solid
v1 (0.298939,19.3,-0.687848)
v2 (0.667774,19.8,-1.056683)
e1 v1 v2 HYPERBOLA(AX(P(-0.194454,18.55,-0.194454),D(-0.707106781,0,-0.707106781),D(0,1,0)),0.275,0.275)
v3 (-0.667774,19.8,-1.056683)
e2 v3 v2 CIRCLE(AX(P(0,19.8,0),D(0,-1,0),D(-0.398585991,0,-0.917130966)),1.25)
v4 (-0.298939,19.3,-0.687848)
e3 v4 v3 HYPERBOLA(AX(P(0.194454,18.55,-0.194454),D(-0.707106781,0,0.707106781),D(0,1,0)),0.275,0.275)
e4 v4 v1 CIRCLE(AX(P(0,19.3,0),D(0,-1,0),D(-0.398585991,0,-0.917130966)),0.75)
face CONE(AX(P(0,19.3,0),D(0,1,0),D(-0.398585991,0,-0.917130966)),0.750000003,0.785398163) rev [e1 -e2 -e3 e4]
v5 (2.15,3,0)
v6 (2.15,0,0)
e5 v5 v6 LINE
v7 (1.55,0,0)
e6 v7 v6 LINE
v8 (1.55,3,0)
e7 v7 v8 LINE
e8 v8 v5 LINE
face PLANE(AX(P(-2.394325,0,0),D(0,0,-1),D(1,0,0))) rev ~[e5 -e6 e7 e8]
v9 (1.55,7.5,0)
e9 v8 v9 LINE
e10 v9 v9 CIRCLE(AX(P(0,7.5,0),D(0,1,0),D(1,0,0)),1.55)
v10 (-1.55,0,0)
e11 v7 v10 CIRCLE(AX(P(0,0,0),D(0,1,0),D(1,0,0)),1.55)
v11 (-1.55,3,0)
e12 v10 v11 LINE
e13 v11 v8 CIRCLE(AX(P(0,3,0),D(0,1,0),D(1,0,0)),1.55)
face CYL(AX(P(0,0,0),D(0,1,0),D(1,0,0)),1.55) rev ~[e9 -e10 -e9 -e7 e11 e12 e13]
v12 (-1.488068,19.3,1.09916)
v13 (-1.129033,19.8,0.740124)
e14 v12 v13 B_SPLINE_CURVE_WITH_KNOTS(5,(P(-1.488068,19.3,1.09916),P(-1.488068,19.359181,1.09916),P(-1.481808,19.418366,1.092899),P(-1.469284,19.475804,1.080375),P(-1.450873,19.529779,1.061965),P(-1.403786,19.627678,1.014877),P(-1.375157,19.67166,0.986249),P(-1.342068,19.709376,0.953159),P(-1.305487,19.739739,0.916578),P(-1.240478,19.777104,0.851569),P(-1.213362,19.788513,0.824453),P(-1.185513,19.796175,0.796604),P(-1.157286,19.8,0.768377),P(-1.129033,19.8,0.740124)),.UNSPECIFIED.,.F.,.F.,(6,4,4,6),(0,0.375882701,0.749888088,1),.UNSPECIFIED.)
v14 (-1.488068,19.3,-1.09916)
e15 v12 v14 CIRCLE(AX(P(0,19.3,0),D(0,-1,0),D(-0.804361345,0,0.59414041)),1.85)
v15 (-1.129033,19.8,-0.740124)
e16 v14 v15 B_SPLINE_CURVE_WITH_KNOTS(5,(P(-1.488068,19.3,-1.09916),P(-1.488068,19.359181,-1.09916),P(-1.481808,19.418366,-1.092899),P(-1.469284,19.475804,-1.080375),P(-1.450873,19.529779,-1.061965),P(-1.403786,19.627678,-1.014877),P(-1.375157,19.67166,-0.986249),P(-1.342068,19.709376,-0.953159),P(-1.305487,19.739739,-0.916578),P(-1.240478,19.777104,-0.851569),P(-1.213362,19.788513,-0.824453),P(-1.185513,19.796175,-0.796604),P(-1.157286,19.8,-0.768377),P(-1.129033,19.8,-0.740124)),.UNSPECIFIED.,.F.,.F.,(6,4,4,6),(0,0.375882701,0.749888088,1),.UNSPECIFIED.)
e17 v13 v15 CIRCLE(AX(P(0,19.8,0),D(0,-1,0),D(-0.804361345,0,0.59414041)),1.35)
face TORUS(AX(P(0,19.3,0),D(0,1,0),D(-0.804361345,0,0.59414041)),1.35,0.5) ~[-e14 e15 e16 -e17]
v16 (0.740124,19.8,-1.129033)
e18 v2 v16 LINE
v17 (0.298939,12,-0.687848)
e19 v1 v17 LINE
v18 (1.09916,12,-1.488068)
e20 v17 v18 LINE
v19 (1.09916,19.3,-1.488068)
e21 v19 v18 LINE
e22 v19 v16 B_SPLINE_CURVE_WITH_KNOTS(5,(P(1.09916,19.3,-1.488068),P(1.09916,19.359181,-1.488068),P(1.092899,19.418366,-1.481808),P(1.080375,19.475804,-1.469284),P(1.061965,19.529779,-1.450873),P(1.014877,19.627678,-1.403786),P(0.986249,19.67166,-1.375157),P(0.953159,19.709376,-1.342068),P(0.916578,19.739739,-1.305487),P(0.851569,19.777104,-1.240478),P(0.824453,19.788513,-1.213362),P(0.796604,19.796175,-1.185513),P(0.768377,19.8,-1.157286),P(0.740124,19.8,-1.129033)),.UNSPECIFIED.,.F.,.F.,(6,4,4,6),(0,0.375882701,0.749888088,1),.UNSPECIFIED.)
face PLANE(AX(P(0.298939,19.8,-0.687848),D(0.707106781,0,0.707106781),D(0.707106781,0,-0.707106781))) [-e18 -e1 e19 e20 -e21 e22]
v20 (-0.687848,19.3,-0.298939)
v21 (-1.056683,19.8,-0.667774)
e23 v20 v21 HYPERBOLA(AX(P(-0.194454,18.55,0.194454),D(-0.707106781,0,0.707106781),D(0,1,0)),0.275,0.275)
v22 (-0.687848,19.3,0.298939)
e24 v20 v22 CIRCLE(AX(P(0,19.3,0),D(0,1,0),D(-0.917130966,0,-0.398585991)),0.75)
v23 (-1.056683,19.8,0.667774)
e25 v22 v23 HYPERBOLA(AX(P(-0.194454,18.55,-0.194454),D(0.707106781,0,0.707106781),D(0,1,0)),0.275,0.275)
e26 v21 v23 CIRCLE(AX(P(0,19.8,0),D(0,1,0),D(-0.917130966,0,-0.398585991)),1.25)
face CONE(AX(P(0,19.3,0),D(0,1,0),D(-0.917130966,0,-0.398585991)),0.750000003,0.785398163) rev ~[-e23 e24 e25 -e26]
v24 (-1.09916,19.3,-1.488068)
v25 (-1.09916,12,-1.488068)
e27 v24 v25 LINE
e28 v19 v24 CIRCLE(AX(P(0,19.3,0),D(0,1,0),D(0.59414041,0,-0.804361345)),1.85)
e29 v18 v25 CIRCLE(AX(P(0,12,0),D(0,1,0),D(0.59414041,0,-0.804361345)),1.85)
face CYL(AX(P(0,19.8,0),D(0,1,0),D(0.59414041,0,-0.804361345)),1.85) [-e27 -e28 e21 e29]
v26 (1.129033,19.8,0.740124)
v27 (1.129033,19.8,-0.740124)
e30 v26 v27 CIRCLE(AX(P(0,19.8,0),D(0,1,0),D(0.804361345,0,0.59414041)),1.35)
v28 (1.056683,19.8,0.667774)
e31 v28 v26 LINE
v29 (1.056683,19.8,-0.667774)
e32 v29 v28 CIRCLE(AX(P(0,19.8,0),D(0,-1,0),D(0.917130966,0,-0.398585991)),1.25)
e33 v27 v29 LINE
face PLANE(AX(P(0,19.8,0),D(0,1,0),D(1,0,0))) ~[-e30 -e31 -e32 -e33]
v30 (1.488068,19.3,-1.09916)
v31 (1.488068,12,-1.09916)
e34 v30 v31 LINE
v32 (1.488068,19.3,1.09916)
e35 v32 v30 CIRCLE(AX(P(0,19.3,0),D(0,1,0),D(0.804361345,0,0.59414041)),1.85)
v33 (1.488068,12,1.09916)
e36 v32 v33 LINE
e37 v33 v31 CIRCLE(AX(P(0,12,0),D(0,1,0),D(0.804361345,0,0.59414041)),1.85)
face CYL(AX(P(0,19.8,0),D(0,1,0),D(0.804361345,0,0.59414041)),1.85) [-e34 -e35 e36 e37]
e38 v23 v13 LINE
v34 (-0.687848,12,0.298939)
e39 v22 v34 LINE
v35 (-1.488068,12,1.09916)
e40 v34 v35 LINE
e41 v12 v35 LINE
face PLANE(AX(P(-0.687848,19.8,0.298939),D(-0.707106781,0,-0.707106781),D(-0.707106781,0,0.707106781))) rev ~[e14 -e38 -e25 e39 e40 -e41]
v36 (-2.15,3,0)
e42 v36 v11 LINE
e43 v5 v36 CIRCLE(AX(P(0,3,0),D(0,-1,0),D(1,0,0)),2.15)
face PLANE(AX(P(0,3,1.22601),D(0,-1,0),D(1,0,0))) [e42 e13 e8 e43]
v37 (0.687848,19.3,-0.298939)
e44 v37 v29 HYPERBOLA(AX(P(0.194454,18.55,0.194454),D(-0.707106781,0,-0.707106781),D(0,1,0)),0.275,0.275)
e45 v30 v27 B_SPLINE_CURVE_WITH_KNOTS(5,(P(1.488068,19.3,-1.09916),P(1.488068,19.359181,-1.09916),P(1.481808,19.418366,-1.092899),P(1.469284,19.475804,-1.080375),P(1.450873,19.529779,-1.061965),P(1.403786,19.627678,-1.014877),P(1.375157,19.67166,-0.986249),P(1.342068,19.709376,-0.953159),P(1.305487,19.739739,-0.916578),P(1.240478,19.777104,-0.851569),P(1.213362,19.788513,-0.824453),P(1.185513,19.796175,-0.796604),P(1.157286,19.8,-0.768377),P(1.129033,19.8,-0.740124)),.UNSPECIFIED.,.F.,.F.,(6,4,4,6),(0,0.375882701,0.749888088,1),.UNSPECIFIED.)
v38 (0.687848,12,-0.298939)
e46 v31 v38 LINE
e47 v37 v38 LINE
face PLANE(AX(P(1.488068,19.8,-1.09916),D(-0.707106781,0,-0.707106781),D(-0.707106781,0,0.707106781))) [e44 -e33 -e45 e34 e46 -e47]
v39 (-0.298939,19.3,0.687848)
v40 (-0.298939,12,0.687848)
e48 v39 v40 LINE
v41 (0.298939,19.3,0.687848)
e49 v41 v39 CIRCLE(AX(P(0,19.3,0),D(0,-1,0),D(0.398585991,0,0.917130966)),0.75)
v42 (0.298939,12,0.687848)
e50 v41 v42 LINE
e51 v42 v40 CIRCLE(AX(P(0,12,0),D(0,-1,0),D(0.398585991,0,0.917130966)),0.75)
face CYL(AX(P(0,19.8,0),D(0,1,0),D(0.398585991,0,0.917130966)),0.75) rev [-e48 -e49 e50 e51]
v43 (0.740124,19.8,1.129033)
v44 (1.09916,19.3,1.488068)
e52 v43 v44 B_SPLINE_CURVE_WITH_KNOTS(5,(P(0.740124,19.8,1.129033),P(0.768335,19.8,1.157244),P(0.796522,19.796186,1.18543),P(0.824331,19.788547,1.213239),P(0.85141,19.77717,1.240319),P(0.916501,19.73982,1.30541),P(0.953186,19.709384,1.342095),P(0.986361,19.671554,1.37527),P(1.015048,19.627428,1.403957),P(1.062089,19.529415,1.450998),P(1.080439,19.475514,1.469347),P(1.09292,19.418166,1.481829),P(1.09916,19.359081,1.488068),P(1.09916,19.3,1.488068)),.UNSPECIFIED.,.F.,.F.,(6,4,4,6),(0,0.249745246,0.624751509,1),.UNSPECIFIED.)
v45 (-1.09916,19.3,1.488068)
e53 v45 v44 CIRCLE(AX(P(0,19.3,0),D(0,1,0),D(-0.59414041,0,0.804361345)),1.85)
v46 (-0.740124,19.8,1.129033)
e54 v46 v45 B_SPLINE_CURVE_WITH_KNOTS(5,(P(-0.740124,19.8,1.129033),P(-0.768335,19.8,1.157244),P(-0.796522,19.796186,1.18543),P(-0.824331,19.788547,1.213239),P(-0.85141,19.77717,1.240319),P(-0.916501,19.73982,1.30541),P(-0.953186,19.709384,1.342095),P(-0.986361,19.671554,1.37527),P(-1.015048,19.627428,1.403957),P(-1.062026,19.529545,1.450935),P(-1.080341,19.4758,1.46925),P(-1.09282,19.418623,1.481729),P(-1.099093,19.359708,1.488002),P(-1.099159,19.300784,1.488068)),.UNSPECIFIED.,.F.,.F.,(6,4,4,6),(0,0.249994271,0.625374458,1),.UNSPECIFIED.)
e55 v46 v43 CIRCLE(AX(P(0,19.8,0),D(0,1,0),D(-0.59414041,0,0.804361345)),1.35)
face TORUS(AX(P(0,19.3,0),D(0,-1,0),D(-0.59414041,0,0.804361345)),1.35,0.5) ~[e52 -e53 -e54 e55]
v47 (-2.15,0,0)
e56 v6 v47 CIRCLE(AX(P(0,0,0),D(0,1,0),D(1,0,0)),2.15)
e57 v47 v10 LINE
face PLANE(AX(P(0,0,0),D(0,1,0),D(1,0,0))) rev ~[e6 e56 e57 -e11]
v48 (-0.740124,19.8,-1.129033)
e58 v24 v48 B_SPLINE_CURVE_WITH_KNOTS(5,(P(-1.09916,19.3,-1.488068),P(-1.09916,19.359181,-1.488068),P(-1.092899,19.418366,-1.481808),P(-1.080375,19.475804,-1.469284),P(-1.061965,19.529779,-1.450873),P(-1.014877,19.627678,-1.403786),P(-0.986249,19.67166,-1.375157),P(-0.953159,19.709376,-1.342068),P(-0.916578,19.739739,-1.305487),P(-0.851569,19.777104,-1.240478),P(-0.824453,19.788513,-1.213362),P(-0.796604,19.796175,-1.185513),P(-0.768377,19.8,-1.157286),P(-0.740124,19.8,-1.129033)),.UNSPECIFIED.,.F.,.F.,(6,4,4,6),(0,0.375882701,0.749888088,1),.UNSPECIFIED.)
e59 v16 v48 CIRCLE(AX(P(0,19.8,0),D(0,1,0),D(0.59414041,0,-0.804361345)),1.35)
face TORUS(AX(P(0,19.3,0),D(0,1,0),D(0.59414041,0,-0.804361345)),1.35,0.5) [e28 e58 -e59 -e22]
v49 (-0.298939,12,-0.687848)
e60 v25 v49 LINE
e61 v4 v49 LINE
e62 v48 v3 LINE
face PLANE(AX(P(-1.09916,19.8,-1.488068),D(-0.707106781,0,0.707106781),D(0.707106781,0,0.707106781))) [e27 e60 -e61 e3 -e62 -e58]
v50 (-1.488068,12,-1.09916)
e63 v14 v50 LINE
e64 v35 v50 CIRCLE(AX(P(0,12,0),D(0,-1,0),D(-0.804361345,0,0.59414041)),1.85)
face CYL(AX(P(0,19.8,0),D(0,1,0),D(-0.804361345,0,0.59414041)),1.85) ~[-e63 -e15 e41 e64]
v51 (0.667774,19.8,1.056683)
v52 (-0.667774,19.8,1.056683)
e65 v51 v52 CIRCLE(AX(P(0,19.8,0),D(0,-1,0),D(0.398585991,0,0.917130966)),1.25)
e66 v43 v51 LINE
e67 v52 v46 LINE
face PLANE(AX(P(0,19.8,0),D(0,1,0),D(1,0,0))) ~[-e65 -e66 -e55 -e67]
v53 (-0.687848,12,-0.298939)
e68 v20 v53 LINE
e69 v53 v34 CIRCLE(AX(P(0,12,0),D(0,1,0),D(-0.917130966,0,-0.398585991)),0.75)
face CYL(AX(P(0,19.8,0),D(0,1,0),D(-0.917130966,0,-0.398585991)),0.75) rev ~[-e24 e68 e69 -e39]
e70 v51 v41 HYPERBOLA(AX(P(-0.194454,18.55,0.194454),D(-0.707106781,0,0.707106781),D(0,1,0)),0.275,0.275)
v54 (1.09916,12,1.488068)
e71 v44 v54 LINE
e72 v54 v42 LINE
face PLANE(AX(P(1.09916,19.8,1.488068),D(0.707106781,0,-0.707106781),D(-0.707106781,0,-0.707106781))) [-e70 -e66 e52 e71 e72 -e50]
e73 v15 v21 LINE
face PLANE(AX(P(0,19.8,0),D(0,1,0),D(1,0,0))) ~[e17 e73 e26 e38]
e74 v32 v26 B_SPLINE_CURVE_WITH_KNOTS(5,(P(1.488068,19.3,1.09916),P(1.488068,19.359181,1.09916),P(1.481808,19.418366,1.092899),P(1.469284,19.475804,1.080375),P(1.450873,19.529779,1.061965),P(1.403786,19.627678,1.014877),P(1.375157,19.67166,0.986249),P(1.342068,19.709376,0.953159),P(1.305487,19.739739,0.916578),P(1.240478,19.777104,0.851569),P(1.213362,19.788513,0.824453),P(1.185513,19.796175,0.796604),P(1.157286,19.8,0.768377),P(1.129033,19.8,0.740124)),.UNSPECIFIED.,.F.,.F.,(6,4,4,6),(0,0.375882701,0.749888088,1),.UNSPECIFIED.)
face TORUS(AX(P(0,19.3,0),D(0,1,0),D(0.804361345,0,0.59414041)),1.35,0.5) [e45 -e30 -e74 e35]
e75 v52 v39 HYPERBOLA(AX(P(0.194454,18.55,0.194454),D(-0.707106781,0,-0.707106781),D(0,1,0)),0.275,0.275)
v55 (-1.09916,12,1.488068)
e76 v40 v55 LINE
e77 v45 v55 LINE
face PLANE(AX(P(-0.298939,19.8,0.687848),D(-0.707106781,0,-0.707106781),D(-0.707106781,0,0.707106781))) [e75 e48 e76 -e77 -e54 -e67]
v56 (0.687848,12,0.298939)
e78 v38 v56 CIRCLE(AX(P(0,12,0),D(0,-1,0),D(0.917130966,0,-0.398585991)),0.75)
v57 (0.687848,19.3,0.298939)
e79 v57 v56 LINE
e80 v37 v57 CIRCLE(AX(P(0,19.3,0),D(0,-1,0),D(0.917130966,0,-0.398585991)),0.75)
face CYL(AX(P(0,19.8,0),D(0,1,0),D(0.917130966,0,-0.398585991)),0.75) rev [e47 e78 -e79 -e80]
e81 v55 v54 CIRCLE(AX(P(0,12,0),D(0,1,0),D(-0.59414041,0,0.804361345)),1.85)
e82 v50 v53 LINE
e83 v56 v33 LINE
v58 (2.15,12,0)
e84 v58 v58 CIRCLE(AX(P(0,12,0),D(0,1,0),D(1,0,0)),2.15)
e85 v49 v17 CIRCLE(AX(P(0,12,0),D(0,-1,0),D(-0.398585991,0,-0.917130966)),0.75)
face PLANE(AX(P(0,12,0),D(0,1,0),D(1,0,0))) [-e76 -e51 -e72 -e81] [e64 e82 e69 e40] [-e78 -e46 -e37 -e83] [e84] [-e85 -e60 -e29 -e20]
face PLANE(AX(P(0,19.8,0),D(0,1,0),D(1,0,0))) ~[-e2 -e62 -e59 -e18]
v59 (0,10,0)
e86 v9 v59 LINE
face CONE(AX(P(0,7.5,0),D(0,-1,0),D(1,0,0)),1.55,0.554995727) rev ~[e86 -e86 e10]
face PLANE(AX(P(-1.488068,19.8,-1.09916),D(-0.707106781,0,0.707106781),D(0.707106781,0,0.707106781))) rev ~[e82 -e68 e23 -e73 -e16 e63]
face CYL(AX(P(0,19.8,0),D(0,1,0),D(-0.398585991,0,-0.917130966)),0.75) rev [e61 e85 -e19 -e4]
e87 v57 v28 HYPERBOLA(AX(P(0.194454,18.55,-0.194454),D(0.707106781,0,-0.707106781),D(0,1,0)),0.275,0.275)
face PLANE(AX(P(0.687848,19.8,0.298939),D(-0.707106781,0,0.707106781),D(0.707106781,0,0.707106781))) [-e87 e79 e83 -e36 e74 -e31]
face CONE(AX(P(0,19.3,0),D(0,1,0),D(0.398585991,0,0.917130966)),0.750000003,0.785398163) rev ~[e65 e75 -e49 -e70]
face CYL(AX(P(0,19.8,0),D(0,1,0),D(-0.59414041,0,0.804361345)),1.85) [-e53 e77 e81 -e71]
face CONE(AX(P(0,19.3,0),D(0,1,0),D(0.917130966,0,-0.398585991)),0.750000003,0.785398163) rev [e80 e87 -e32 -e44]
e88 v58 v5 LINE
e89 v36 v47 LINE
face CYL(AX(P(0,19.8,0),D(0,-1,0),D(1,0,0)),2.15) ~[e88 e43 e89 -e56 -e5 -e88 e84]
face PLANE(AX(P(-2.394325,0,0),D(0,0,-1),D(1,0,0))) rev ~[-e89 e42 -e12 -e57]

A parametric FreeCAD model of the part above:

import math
import FreeCAD as App
import Part
import Sketcher
from FreeCAD import Vector
Q = App.Units.Quantity


def edges_at(feature, points):
    """Names of the edges that pass closest to the given points."""
    edges = feature.Shape.Edges
    near = lambda p: min(range(len(edges)), key=lambda i: edges[i].distToShape(Part.Vertex(*p))[0])
    return sorted({f"Edge{near(p) + 1}" for p in points})

doc = App.newDocument("Part")
body = doc.addObject("PartDesign::Body", "Body")

sketch1 = body.newObject("Sketcher::SketchObject", "Sketch")
sketch1.AttachmentSupport = (doc.getObject("XY_Plane"), [""])
sketch1.MapMode = "FlatFace"
sketch1.addGeometry(Part.LineSegment(Vector(0, 19.8, 0), Vector(0, 10, 0)), False)
sketch1.addGeometry(Part.LineSegment(Vector(0, 10, 0), Vector(1.55, 7.5, 0)), False)
sketch1.addGeometry(Part.LineSegment(Vector(1.55, 7.5, 0), Vector(1.55, 0, 0)), False)
sketch1.addGeometry(Part.LineSegment(Vector(1.55, 0, 0), Vector(2.15, 0, 0)), False)
sketch1.addGeometry(Part.LineSegment(Vector(2.15, 0, 0), Vector(2.15, 19.8, 0)), False)
sketch1.addGeometry(Part.LineSegment(Vector(2.15, 19.8, 0), Vector(0, 19.8, 0)), False)
sketch1.addConstraint(Sketcher.Constraint("Coincident", 0, 2, 1, 1))
sketch1.addConstraint(Sketcher.Constraint("Coincident", 1, 2, 2, 1))
sketch1.addConstraint(Sketcher.Constraint("Coincident", 2, 2, 3, 1))
sketch1.addConstraint(Sketcher.Constraint("Coincident", 3, 2, 4, 1))
sketch1.addConstraint(Sketcher.Constraint("Coincident", 4, 2, 5, 1))
sketch1.addConstraint(Sketcher.Constraint("Coincident", 5, 2, 0, 1))
sketch1.addConstraint(Sketcher.Constraint("Vertical", 0))
sketch1.addConstraint(Sketcher.Constraint("Vertical", 2))
sketch1.addConstraint(Sketcher.Constraint("Horizontal", 3))
sketch1.addConstraint(Sketcher.Constraint("Vertical", 4))
sketch1.addConstraint(Sketcher.Constraint("Horizontal", 5))
sketch1.addConstraint(Sketcher.Constraint("PointOnObject", 0, 2, -2))
sketch1.addConstraint(Sketcher.Constraint("PointOnObject", 2, 2, -1))
sketch1.addConstraint(Sketcher.Constraint("DistanceX", 3, 1, 3, 2, Q("0.6 mm")))
sketch1.addConstraint(Sketcher.Constraint("DistanceY", 0, 2, 0, 1, Q("9.8 mm")))
sketch1.addConstraint(Sketcher.Constraint("DistanceY", 2, 2, 2, 1, Q("7.5 mm")))
sketch1.addConstraint(Sketcher.Constraint("DistanceY", 4, 1, 4, 2, Q("19.8 mm")))
sketch1.addConstraint(Sketcher.Constraint("DistanceX", 5, 2, 5, 1, Q("2.15 mm")))
revolution = body.newObject("PartDesign::Revolution", "Revolution")
revolution.Profile = sketch1
revolution.ReferenceAxis = (sketch1, ["V_Axis"])
revolution.Angle = 360

sketch2 = body.newObject("Sketcher::SketchObject", "Sketch001")
sketch2.AttachmentSupport = (doc.getObject("XZ_Plane"), [""])
sketch2.MapMode = "FlatFace"
sketch2.AttachmentOffset = App.Placement(Vector(0, 0, -19.8), App.Rotation())
sketch2.addGeometry(Part.Circle(Vector(0, 0, 0), Vector(0, 0, 1), 2.15), False)
sketch2.addGeometry(Part.LineSegment(Vector(0.298939, 0.687848, 0), Vector(1.09916, 1.488068, 0)), False)
sketch2.addGeometry(Part.ArcOfCircle(Part.Circle(Vector(0, 0, 0), Vector(0, 0, 1), 1.85), math.radians(53.548622), math.radians(126.451378)), False)
sketch2.addGeometry(Part.LineSegment(Vector(-1.09916, 1.488068, 0), Vector(-0.298939, 0.687848, 0)), False)
sketch2.addGeometry(Part.ArcOfCircle(Part.Circle(Vector(0, 0, 0), Vector(0, 0, 1), 0.75), math.radians(66.510188), math.radians(113.489812)), False)
sketch2.addGeometry(Part.ArcOfCircle(Part.Circle(Vector(0, 0, 0), Vector(0, 0, 1), 1.85), math.radians(143.548622), math.radians(216.451378)), False)
sketch2.addGeometry(Part.LineSegment(Vector(-1.488068, -1.09916, 0), Vector(-0.687848, -0.298939, 0)), False)
sketch2.addGeometry(Part.ArcOfCircle(Part.Circle(Vector(0, 0, 0), Vector(0, 0, 1), 0.75), math.radians(156.510188), math.radians(203.489812)), False)
sketch2.addGeometry(Part.LineSegment(Vector(-0.687848, 0.298939, 0), Vector(-1.488068, 1.09916, 0)), False)
sketch2.addGeometry(Part.LineSegment(Vector(0.687848, -0.298939, 0), Vector(1.488068, -1.09916, 0)), False)
sketch2.addGeometry(Part.ArcOfCircle(Part.Circle(Vector(0, 0, 0), Vector(0, 0, 1), 1.85), math.radians(-36.451378), math.radians(36.451378)), False)
sketch2.addGeometry(Part.LineSegment(Vector(1.488068, 1.09916, 0), Vector(0.687848, 0.298939, 0)), False)
sketch2.addGeometry(Part.ArcOfCircle(Part.Circle(Vector(0, 0, 0), Vector(0, 0, 1), 0.75), math.radians(-23.489812), math.radians(23.489812)), False)
sketch2.addGeometry(Part.LineSegment(Vector(-0.298939, -0.687848, 0), Vector(-1.09916, -1.488068, 0)), False)
sketch2.addGeometry(Part.ArcOfCircle(Part.Circle(Vector(0, 0, 0), Vector(0, 0, 1), 1.85), math.radians(-126.451378), math.radians(-53.548622)), False)
sketch2.addGeometry(Part.LineSegment(Vector(1.09916, -1.488068, 0), Vector(0.298939, -0.687848, 0)), False)
sketch2.addGeometry(Part.ArcOfCircle(Part.Circle(Vector(0, 0, 0), Vector(0, 0, 1), 0.75), math.radians(-113.489812), math.radians(-66.510188)), False)
sketch2.addConstraint(Sketcher.Constraint("Coincident", 1, 2, 2, 1))
sketch2.addConstraint(Sketcher.Constraint("Coincident", 2, 2, 3, 1))
sketch2.addConstraint(Sketcher.Constraint("Coincident", 3, 2, 4, 2))
sketch2.addConstraint(Sketcher.Constraint("Coincident", 4, 1, 1, 1))
sketch2.addConstraint(Sketcher.Constraint("Coincident", 5, 2, 6, 1))
sketch2.addConstraint(Sketcher.Constraint("Coincident", 6, 2, 7, 2))
sketch2.addConstraint(Sketcher.Constraint("Coincident", 7, 1, 8, 1))
sketch2.addConstraint(Sketcher.Constraint("Coincident", 8, 2, 5, 1))
sketch2.addConstraint(Sketcher.Constraint("Coincident", 9, 2, 10, 1))
sketch2.addConstraint(Sketcher.Constraint("Coincident", 10, 2, 11, 1))
sketch2.addConstraint(Sketcher.Constraint("Coincident", 11, 2, 12, 2))
sketch2.addConstraint(Sketcher.Constraint("Coincident", 12, 1, 9, 1))
sketch2.addConstraint(Sketcher.Constraint("Coincident", 13, 2, 14, 1))
sketch2.addConstraint(Sketcher.Constraint("Coincident", 14, 2, 15, 1))
sketch2.addConstraint(Sketcher.Constraint("Coincident", 15, 2, 16, 2))
sketch2.addConstraint(Sketcher.Constraint("Coincident", 16, 1, 13, 1))
sketch2.addConstraint(Sketcher.Constraint("Coincident", 0, 3, -1, 1))
sketch2.addConstraint(Sketcher.Constraint("Coincident", 2, 3, -1, 1))
sketch2.addConstraint(Sketcher.Constraint("Coincident", 4, 3, -1, 1))
sketch2.addConstraint(Sketcher.Constraint("Coincident", 5, 3, -1, 1))
sketch2.addConstraint(Sketcher.Constraint("Coincident", 7, 3, -1, 1))
sketch2.addConstraint(Sketcher.Constraint("Coincident", 10, 3, -1, 1))
sketch2.addConstraint(Sketcher.Constraint("Coincident", 12, 3, -1, 1))
sketch2.addConstraint(Sketcher.Constraint("Coincident", 14, 3, -1, 1))
sketch2.addConstraint(Sketcher.Constraint("Coincident", 16, 3, -1, 1))
sketch2.addConstraint(Sketcher.Constraint("Equal", 2, 5))
sketch2.addConstraint(Sketcher.Constraint("Equal", 4, 7))
sketch2.addConstraint(Sketcher.Constraint("Equal", 5, 10))
sketch2.addConstraint(Sketcher.Constraint("Equal", 7, 12))
sketch2.addConstraint(Sketcher.Constraint("Equal", 10, 14))
sketch2.addConstraint(Sketcher.Constraint("Equal", 12, 16))
sketch2.addConstraint(Sketcher.Constraint("Perpendicular", 1, 3))
sketch2.addConstraint(Sketcher.Constraint("Perpendicular", 3, 6))
sketch2.addConstraint(Sketcher.Constraint("Perpendicular", 6, 8))
sketch2.addConstraint(Sketcher.Constraint("Parallel", 8, 9))
sketch2.addConstraint(Sketcher.Constraint("Perpendicular", 9, 11))
sketch2.addConstraint(Sketcher.Constraint("Parallel", 11, 13))
sketch2.addConstraint(Sketcher.Constraint("Perpendicular", 13, 15))
sketch2.addConstraint(Sketcher.Constraint("Horizontal", 1, 2, 2, 2))
sketch2.addConstraint(Sketcher.Constraint("Horizontal", 3, 2, 4, 1))
sketch2.addConstraint(Sketcher.Constraint("Horizontal", 5, 2, 9, 2))
sketch2.addConstraint(Sketcher.Constraint("Horizontal", 8, 2, 10, 2))
sketch2.addConstraint(Sketcher.Constraint("Horizontal", 13, 2, 14, 2))
sketch2.addConstraint(Sketcher.Constraint("Vertical", 6, 2, 7, 1))
sketch2.addConstraint(Sketcher.Constraint("Vertical", 2, 2, 13, 2))
sketch2.addConstraint(Sketcher.Constraint("Equal", 3, 6))
sketch2.addConstraint(Sketcher.Constraint("Diameter", 0, Q("4.3 mm")))
sketch2.addConstraint(Sketcher.Constraint("Radius", 2, Q("1.85 mm")))
sketch2.addConstraint(Sketcher.Constraint("Radius", 4, Q("0.75 mm")))
sketch2.addConstraint(Sketcher.Constraint("DistanceY", 6, 2, 8, 2, Q("1.398099 mm")))
pocket1 = body.newObject("PartDesign::Pocket", "Pocket")
pocket1.Profile = sketch2
pocket1.Length = 7.8
pocket1.Reversed = True

sketch3 = body.newObject("Sketcher::SketchObject", "Sketch002")
sketch3.AttachmentSupport = (doc.getObject("XZ_Plane"), [""])
sketch3.MapMode = "FlatFace"
sketch3.addGeometry(Part.LineSegment(Vector(-2.394325, 2.45202, 0), Vector(-2.394325, 0, 0)), False)
sketch3.addGeometry(Part.LineSegment(Vector(-2.394325, 0, 0), Vector(2.394325, 0, 0)), False)
sketch3.addGeometry(Part.LineSegment(Vector(2.394325, 0, 0), Vector(2.394325, 2.45202, 0)), False)
sketch3.addGeometry(Part.LineSegment(Vector(2.394325, 2.45202, 0), Vector(-2.394325, 2.45202, 0)), False)
sketch3.addConstraint(Sketcher.Constraint("Coincident", 0, 2, 1, 1))
sketch3.addConstraint(Sketcher.Constraint("Coincident", 1, 2, 2, 1))
sketch3.addConstraint(Sketcher.Constraint("Coincident", 2, 2, 3, 1))
sketch3.addConstraint(Sketcher.Constraint("Coincident", 3, 2, 0, 1))
sketch3.addConstraint(Sketcher.Constraint("Vertical", 0))
sketch3.addConstraint(Sketcher.Constraint("Horizontal", 1))
sketch3.addConstraint(Sketcher.Constraint("Vertical", 2))
sketch3.addConstraint(Sketcher.Constraint("Horizontal", 3))
sketch3.addConstraint(Sketcher.Constraint("Symmetric", 0, 2, 1, 2, -1, 1))
sketch3.addConstraint(Sketcher.Constraint("DistanceX", 1, 1, 1, 2, Q("4.78865 mm")))
sketch3.addConstraint(Sketcher.Constraint("DistanceY", 0, 2, 0, 1, Q("2.45202 mm")))
pocket2 = body.newObject("PartDesign::Pocket", "Pocket001")
pocket2.Profile = sketch3
pocket2.Length = 3
doc.recompute()

chamfer = body.newObject("PartDesign::Chamfer", "Chamfer")
chamfer.Base = (pocket2, edges_at(pocket2, [
    (0, 19.8, -0.75),
    (-0.75, 19.8, 0),
    (0.75, 19.8, 0),
    (0, 19.8, 0.75),
]))
chamfer.Size = 0.5
doc.recompute()

fillet = body.newObject("PartDesign::Fillet", "Fillet")
fillet.Base = (chamfer, edges_at(chamfer, [
    (0, 19.8, -1.85),
    (-1.85, 19.8, 0),
    (1.85, 19.8, 0),
    (0, 19.8, 1.85),
]))
fillet.Radius = 0.5

doc.recompute()
